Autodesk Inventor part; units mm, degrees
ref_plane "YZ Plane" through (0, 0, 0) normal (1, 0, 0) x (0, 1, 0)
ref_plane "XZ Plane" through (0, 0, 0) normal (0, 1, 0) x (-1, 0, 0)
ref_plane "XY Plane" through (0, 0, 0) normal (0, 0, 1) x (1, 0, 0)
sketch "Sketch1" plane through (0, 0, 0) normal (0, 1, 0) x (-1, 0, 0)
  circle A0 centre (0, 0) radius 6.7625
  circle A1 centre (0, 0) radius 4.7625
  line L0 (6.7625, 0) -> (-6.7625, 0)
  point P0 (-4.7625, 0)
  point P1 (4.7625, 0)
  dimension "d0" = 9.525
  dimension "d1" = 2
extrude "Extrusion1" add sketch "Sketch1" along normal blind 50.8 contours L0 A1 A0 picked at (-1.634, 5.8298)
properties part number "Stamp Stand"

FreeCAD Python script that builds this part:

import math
import FreeCAD as App
import Part
import Sketcher
Q = App.Units.Quantity

doc = App.newDocument("Part")
body = doc.addObject("PartDesign::Body", "Body")

sketch1 = doc.addObject("Sketcher::SketchObject", "Sketch")
body.addObject(sketch1)
sketch1.AttachmentSupport = (doc.XZ_Plane, [""])
sketch1.MapMode = "FlatFace"
sketch1.addGeometry([
    Part.LineSegment(App.Vector(-4.8, 0, 0), App.Vector(-6.8, 0, 0)),
    Part.ArcOfCircle(Part.Circle(App.Vector(0, 0, 0), App.Vector(0, 0, 1), 6.8), math.radians(0), math.radians(180)),
    Part.LineSegment(App.Vector(6.8, 0, 0), App.Vector(4.8, 0, 0)),
    Part.ArcOfCircle(Part.Circle(App.Vector(0, 0, 0), App.Vector(0, 0, 1), 4.8), math.radians(0), math.radians(180)),
], False)
sketch1.addConstraint([
    Sketcher.Constraint("Coincident", 0, 2, 1, 2),
    Sketcher.Constraint("Coincident", 1, 1, 2, 1),
    Sketcher.Constraint("Coincident", 2, 2, 3, 1),
    Sketcher.Constraint("Coincident", 3, 2, 0, 1),
    Sketcher.Constraint("Horizontal", 0),
    Sketcher.Constraint("Horizontal", 2),
    Sketcher.Constraint("Coincident", 1, 3, -1, 1),
    Sketcher.Constraint("Coincident", 3, 3, -1, 1),
    Sketcher.Constraint("PointOnObject", 0, 2, -1),
    Sketcher.Constraint("PointOnObject", 1, 1, -1),
    Sketcher.Constraint("Radius", 3, Q("0.1875 in")),
    Sketcher.Constraint("DistanceX", 0, 2, 0, 1, 2.0),
])
pad1 = doc.addObject("PartDesign::Pad", "Pad")
body.addObject(pad1)
pad1.Profile = sketch1
pad1.Length = Q("2 in")
pad1.Reversed = True

doc.recompute()
